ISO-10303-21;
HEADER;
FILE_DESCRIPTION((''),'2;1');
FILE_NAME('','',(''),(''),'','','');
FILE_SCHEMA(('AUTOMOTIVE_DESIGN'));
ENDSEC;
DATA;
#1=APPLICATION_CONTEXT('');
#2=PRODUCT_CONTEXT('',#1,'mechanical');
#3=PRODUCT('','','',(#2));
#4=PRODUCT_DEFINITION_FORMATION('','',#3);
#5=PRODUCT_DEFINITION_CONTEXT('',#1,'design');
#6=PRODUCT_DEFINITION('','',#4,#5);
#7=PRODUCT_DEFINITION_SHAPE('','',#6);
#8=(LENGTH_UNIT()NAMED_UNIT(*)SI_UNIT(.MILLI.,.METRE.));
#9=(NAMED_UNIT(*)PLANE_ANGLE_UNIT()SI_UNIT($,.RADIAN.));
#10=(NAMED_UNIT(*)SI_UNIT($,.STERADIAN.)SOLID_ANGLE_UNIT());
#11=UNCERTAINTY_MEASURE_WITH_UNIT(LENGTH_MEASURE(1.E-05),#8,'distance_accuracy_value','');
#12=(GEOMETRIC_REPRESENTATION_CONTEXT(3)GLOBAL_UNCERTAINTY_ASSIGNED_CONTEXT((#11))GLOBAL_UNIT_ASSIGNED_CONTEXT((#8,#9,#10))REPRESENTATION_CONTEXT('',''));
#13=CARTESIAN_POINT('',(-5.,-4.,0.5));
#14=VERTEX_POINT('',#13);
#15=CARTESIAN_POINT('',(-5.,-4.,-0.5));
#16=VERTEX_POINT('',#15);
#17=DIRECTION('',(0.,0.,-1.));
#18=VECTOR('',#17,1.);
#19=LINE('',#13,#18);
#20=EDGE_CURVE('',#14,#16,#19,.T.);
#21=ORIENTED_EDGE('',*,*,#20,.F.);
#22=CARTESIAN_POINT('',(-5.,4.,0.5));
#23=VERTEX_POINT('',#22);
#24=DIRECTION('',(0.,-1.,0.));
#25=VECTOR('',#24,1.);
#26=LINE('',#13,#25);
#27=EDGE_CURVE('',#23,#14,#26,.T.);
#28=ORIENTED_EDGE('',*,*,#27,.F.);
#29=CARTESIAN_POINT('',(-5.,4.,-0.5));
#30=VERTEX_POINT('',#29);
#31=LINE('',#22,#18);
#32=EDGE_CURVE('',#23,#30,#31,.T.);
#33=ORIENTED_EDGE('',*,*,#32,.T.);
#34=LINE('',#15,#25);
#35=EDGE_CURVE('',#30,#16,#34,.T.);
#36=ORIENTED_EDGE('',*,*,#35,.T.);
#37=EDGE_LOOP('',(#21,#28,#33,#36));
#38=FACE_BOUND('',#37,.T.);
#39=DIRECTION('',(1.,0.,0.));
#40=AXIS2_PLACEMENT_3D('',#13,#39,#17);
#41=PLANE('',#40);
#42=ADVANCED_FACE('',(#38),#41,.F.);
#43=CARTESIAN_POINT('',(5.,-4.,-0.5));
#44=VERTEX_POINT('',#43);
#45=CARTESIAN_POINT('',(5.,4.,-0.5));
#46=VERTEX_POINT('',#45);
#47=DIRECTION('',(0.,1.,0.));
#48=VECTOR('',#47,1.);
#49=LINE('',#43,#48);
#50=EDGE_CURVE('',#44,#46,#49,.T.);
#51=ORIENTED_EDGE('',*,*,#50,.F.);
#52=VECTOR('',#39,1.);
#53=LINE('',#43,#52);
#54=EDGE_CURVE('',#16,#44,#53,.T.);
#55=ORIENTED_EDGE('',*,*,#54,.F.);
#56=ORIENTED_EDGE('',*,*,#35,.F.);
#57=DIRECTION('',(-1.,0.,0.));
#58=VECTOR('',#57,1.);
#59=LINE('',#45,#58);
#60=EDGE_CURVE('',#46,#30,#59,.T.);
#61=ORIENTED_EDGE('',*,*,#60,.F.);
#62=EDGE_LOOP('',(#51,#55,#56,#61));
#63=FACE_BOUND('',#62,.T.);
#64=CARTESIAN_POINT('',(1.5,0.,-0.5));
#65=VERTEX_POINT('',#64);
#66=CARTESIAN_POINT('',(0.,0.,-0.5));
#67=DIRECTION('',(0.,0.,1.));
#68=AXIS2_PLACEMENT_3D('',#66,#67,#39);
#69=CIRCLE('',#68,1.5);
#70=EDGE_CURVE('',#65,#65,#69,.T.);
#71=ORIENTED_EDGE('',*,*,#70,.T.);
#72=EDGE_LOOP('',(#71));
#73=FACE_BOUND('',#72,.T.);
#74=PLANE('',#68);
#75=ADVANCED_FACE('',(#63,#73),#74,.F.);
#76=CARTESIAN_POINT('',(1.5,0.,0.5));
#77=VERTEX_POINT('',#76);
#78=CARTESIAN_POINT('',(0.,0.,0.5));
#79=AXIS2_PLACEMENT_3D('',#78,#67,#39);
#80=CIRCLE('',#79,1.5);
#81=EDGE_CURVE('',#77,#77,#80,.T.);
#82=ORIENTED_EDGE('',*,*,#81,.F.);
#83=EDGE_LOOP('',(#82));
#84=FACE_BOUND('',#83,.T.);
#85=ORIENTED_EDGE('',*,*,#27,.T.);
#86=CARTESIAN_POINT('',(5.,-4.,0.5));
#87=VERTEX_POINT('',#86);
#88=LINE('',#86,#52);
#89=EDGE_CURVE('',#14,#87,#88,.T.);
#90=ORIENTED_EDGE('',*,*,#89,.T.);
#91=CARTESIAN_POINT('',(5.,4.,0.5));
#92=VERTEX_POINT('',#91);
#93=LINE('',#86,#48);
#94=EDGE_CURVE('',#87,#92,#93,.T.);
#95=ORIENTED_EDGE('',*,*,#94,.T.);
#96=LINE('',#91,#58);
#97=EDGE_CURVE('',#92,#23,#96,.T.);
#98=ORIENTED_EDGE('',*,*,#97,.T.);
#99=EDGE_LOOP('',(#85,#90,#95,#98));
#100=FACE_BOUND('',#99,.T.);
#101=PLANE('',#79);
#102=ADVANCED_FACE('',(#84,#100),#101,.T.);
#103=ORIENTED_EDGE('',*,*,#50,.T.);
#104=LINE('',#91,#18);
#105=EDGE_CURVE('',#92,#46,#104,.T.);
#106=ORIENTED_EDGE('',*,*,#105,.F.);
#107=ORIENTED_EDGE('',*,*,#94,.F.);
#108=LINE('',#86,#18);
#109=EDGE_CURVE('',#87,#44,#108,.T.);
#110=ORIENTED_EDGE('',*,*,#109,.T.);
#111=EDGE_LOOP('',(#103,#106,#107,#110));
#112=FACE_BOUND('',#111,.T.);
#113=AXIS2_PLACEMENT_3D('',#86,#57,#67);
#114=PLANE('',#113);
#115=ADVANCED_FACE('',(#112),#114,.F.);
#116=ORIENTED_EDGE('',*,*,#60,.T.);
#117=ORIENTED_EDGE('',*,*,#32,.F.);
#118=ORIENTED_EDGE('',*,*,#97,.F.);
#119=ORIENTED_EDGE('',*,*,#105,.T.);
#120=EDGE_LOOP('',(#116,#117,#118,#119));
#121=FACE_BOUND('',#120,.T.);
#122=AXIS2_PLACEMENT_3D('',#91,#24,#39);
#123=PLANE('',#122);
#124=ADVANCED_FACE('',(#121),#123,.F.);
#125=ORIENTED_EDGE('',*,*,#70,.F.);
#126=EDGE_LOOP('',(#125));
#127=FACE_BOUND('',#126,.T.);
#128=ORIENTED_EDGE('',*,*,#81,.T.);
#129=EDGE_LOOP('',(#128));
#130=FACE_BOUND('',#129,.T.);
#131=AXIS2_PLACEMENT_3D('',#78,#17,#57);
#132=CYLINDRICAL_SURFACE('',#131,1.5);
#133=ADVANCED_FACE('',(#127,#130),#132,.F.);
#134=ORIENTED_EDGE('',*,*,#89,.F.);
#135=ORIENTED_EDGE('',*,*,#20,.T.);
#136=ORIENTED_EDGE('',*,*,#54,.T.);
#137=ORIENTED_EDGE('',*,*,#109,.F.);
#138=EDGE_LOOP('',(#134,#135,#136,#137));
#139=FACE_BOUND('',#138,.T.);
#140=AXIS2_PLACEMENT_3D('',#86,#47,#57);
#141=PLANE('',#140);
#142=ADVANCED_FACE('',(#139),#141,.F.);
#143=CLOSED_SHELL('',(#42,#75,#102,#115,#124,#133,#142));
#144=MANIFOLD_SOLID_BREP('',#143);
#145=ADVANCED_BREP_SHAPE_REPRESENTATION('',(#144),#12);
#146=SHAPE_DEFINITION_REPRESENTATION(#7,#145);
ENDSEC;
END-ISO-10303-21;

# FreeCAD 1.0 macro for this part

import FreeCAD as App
import Part
import Sketcher
Q = App.Units.Quantity

doc = App.newDocument("Part")
body = doc.addObject("PartDesign::Body", "Body")

# Sketch on XY plane
sketch1 = body.newObject("Sketcher::SketchObject", "Sketch")
sketch1.AttachmentSupport = (doc.getObject("XY_Plane"), [""])
sketch1.MapMode = "FlatFace"
sketch1.addGeometry(Part.LineSegment(App.Vector(-5, 4, 0), App.Vector(-5, -4, 0)), False)
sketch1.addGeometry(Part.LineSegment(App.Vector(-5, -4, 0), App.Vector(5, -4, 0)), False)
sketch1.addGeometry(Part.LineSegment(App.Vector(5, -4, 0), App.Vector(5, 4, 0)), False)
sketch1.addGeometry(Part.LineSegment(App.Vector(5, 4, 0), App.Vector(-5, 4, 0)), False)
sketch1.addGeometry(Part.Circle(App.Vector(0, 0, 0), App.Vector(0, 0, 1), 1.5), False)
sketch1.addConstraint(Sketcher.Constraint("Coincident", 0, 2, 1, 1))
sketch1.addConstraint(Sketcher.Constraint("Coincident", 1, 2, 2, 1))
sketch1.addConstraint(Sketcher.Constraint("Coincident", 2, 2, 3, 1))
sketch1.addConstraint(Sketcher.Constraint("Coincident", 3, 2, 0, 1))
sketch1.addConstraint(Sketcher.Constraint("Vertical", 0))
sketch1.addConstraint(Sketcher.Constraint("Horizontal", 1))
sketch1.addConstraint(Sketcher.Constraint("Vertical", 2))
sketch1.addConstraint(Sketcher.Constraint("Horizontal", 3))
sketch1.addConstraint(Sketcher.Constraint("Coincident", 4, 3, -1, 1))
sketch1.addConstraint(Sketcher.Constraint("Symmetric", 0, 2, 2, 2, -1, 1))
sketch1.addConstraint(Sketcher.Constraint("Diameter", 4, Q("3 mm")))
sketch1.addConstraint(Sketcher.Constraint("DistanceX", 1, 1, 1, 2, Q("10 mm")))
sketch1.addConstraint(Sketcher.Constraint("DistanceY", 0, 2, 0, 1, Q("8 mm")))
pad1 = body.newObject("PartDesign::Pad", "Pad")
pad1.Profile = sketch1
pad1.Length = 1
pad1.Midplane = True

doc.recompute()
